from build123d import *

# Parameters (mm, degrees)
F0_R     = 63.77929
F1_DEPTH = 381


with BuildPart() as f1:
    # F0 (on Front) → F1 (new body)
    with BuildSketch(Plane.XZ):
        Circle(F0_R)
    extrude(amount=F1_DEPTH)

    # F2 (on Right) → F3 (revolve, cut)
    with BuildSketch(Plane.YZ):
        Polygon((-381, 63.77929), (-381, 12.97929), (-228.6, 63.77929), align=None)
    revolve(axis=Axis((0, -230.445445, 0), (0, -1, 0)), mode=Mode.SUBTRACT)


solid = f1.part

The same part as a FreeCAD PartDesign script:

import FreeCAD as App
import Part
import Sketcher
Q = App.Units.Quantity

doc = App.newDocument("Part")
body = doc.addObject("PartDesign::Body", "Body")

# Sketch on XZ plane
sketch1 = doc.addObject("Sketcher::SketchObject", "Sketch")
body.addObject(sketch1)
sketch1.AttachmentSupport = (doc.XZ_Plane, [""])
sketch1.MapMode = "FlatFace"
sketch1.addGeometry(Part.Circle(App.Vector(0, 0, 0), App.Vector(0, 0, 1), 64), False)
sketch1.addConstraint(Sketcher.Constraint("Coincident", 0, 3, -1, 1))
sketch1.addConstraint(Sketcher.Constraint("Diameter", 0, 127.55858))
pad1 = doc.addObject("PartDesign::Pad", "Pad")
body.addObject(pad1)
pad1.Profile = sketch1
pad1.Length = Q("15 in")

# Sketch on YZ plane
sketch2 = doc.addObject("Sketcher::SketchObject", "Sketch001")
body.addObject(sketch2)
sketch2.AttachmentSupport = (doc.YZ_Plane, [""])
sketch2.MapMode = "FlatFace"
sketch2.addGeometry(Part.LineSegment(App.Vector(-381, 64, 0), App.Vector(-381, 13, 0)), False)
sketch2.addGeometry(Part.LineSegment(App.Vector(-381, 13, 0), App.Vector(-229, 64, 0)), False)
sketch2.addGeometry(Part.LineSegment(App.Vector(-229, 64, 0), App.Vector(-381, 64, 0)), False)
sketch2.addConstraint(Sketcher.Constraint("Coincident", 0, 2, 1, 1))
sketch2.addConstraint(Sketcher.Constraint("Coincident", 1, 2, 2, 1))
sketch2.addConstraint(Sketcher.Constraint("Coincident", 2, 2, 0, 1))
sketch2.addConstraint(Sketcher.Constraint("Vertical", 0))
sketch2.addConstraint(Sketcher.Constraint("Horizontal", 2))
sketch2.addConstraint(Sketcher.Constraint("DistanceX", 2, 2, 2, 1, Q("6 in")))
sketch2.addConstraint(Sketcher.Constraint("DistanceY", 0, 2, 0, 1, Q("2 in")))
sketch2.addConstraint(Sketcher.Constraint("DistanceX", 0, 2, -1, 1, Q("15 in")))
sketch2.addConstraint(Sketcher.Constraint("DistanceY", -1, 1, 0, 2, 12.97929))
groove = doc.addObject("PartDesign::Groove", "Groove")
body.addObject(groove)
groove.Profile = sketch2
groove.ReferenceAxis = (sketch2, ["H_Axis"])
groove.Angle = 360

doc.recompute()
